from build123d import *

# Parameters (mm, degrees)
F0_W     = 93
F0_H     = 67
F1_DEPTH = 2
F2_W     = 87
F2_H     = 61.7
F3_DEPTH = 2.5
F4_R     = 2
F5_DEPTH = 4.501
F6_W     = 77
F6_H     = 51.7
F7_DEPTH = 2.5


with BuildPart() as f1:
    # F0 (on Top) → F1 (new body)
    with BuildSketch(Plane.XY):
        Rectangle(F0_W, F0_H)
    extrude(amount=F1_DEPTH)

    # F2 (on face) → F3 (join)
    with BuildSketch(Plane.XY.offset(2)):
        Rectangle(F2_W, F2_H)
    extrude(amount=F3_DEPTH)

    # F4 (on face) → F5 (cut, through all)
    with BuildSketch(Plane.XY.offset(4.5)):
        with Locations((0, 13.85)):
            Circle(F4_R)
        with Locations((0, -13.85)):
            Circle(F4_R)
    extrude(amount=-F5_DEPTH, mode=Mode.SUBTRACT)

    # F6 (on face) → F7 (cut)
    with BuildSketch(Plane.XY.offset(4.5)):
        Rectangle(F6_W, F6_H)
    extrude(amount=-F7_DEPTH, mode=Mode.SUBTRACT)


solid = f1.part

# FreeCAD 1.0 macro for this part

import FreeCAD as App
import Part
import Sketcher
from FreeCAD import Vector

doc = App.newDocument("Part")
body = doc.addObject("PartDesign::Body", "Body")

# Sketch on XY plane
sketch1 = body.newObject("Sketcher::SketchObject", "Sketch")
sketch1.AttachmentSupport = (doc.getObject("XY_Plane"), [""])
sketch1.MapMode = "FlatFace"
sketch1.addGeometry([
    Part.LineSegment(Vector(-46, 34, 0), Vector(-46, -34, 0)),
    Part.LineSegment(Vector(-46, -34, 0), Vector(46, -34, 0)),
    Part.LineSegment(Vector(46, -34, 0), Vector(46, 34, 0)),
    Part.LineSegment(Vector(46, 34, 0), Vector(-46, 34, 0)),
], False)
sketch1.addConstraint([
    Sketcher.Constraint("Coincident", 0, 2, 1, 1),
    Sketcher.Constraint("Coincident", 1, 2, 2, 1),
    Sketcher.Constraint("Coincident", 2, 2, 3, 1),
    Sketcher.Constraint("Coincident", 3, 2, 0, 1),
    Sketcher.Constraint("Vertical", 0),
    Sketcher.Constraint("Horizontal", 1),
    Sketcher.Constraint("Vertical", 2),
    Sketcher.Constraint("Horizontal", 3),
    Sketcher.Constraint("Symmetric", 0, 2, 2, 2, -1, 1),
    Sketcher.Constraint("DistanceX", 1, 1, 1, 2, 93.0),
    Sketcher.Constraint("DistanceY", 0, 2, 0, 1, 67.0),
])
pad1 = body.newObject("PartDesign::Pad", "Pad")
pad1.Profile = sketch1
pad1.Length = 2

# Sketch on XY plane
sketch2 = body.newObject("Sketcher::SketchObject", "Sketch001")
sketch2.AttachmentSupport = (doc.getObject("XY_Plane"), [""])
sketch2.MapMode = "FlatFace"
sketch2.AttachmentOffset = App.Placement(Vector(0, 0, 2), App.Rotation())
sketch2.addGeometry([
    Part.LineSegment(Vector(-44, 31, 0), Vector(-44, -31, 0)),
    Part.LineSegment(Vector(-44, -31, 0), Vector(44, -31, 0)),
    Part.LineSegment(Vector(44, -31, 0), Vector(44, 31, 0)),
    Part.LineSegment(Vector(44, 31, 0), Vector(-44, 31, 0)),
], False)
sketch2.addConstraint([
    Sketcher.Constraint("Coincident", 0, 2, 1, 1),
    Sketcher.Constraint("Coincident", 1, 2, 2, 1),
    Sketcher.Constraint("Coincident", 2, 2, 3, 1),
    Sketcher.Constraint("Coincident", 3, 2, 0, 1),
    Sketcher.Constraint("Vertical", 0),
    Sketcher.Constraint("Horizontal", 1),
    Sketcher.Constraint("Vertical", 2),
    Sketcher.Constraint("Horizontal", 3),
    Sketcher.Constraint("Symmetric", 0, 2, 2, 2, -1, 1),
    Sketcher.Constraint("DistanceX", 1, 1, 1, 2, 87.0),
    Sketcher.Constraint("DistanceY", 0, 2, 0, 1, 61.7),
])
pad2 = body.newObject("PartDesign::Pad", "Pad001")
pad2.Profile = sketch2
pad2.Length = 2.5

# Sketch on XY plane
sketch3 = body.newObject("Sketcher::SketchObject", "Sketch002")
sketch3.AttachmentSupport = (doc.getObject("XY_Plane"), [""])
sketch3.MapMode = "FlatFace"
sketch3.AttachmentOffset = App.Placement(Vector(0, 0, 4.5), App.Rotation())
sketch3.addGeometry([
    Part.Circle(Vector(0, 13.8, 0), Vector(0, 0, 1), 2),
    Part.Circle(Vector(0, -13.8, 0), Vector(0, 0, 1), 2),
], False)
sketch3.addConstraint([
    Sketcher.Constraint("Equal", 0, 1),
    Sketcher.Constraint("Symmetric", 0, 3, 1, 3, -1, 1),
    Sketcher.Constraint("PointOnObject", 0, 3, -2),
    Sketcher.Constraint("Diameter", 0, 4.0),
    Sketcher.Constraint("DistanceY", 1, 3, 0, 3, 27.7),
])
pocket1 = body.newObject("PartDesign::Pocket", "Pocket")
pocket1.Profile = sketch3
pocket1.Type = "ThroughAll"

# Sketch on XY plane
sketch4 = body.newObject("Sketcher::SketchObject", "Sketch003")
sketch4.AttachmentSupport = (doc.getObject("XY_Plane"), [""])
sketch4.MapMode = "FlatFace"
sketch4.AttachmentOffset = App.Placement(Vector(0, 0, 4.5), App.Rotation())
sketch4.addGeometry([
    Part.LineSegment(Vector(-38, 26, 0), Vector(-38, -26, 0)),
    Part.LineSegment(Vector(-38, -26, 0), Vector(38, -26, 0)),
    Part.LineSegment(Vector(38, -26, 0), Vector(38, 26, 0)),
    Part.LineSegment(Vector(38, 26, 0), Vector(-38, 26, 0)),
], False)
sketch4.addConstraint([
    Sketcher.Constraint("Coincident", 0, 2, 1, 1),
    Sketcher.Constraint("Coincident", 1, 2, 2, 1),
    Sketcher.Constraint("Coincident", 2, 2, 3, 1),
    Sketcher.Constraint("Coincident", 3, 2, 0, 1),
    Sketcher.Constraint("Vertical", 0),
    Sketcher.Constraint("Horizontal", 1),
    Sketcher.Constraint("Vertical", 2),
    Sketcher.Constraint("Horizontal", 3),
    Sketcher.Constraint("Symmetric", 0, 2, 2, 2, -1, 1),
    Sketcher.Constraint("DistanceX", 1, 1, 1, 2, 77.0),
    Sketcher.Constraint("DistanceY", 0, 2, 0, 1, 51.7),
])
pocket2 = body.newObject("PartDesign::Pocket", "Pocket001")
pocket2.Profile = sketch4
pocket2.Length = 2.5

doc.recompute()
